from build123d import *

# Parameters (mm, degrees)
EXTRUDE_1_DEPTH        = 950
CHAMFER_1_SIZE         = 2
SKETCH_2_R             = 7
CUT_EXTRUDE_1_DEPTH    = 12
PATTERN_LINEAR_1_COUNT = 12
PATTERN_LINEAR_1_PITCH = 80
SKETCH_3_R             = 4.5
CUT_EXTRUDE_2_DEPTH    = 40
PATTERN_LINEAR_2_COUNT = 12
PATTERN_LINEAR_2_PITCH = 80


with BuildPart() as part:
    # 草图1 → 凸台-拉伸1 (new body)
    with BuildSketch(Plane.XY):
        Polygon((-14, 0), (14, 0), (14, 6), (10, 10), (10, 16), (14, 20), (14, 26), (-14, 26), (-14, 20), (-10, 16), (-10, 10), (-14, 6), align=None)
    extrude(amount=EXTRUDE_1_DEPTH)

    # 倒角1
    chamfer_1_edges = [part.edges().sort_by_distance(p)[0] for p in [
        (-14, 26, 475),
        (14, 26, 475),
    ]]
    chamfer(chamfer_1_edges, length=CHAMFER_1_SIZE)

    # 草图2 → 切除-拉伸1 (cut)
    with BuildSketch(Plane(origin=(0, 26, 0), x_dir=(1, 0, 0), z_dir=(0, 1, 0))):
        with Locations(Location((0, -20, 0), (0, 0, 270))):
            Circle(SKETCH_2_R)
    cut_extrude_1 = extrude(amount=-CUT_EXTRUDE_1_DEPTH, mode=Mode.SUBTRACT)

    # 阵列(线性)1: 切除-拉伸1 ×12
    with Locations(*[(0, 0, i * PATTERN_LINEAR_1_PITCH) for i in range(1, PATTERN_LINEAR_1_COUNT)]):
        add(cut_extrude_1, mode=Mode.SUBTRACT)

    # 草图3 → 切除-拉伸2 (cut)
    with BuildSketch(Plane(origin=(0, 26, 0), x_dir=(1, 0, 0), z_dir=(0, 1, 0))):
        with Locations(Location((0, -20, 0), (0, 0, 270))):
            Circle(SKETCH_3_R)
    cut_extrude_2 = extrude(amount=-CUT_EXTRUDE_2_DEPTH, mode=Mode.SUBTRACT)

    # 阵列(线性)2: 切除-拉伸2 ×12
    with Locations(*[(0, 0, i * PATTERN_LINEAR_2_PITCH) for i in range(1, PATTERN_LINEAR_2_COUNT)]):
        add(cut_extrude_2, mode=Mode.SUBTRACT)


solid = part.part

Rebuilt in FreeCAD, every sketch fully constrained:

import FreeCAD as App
import Part
import Sketcher
from FreeCAD import Vector


def edges_at(feature, points):
    """Names of the edges that pass closest to the given points."""
    edges = feature.Shape.Edges
    near = lambda p: min(range(len(edges)), key=lambda i: edges[i].distToShape(Part.Vertex(*p))[0])
    return sorted({f"Edge{near(p) + 1}" for p in points})


def add_polygon(sketch, points):
    """Adds a closed chain of lines whose ends are joined by coincident constraints."""
    first, n = sketch.GeometryCount, len(points)
    for a, b in zip(points, points[1:] + points[:1]):
        sketch.addGeometry(Part.LineSegment(App.Vector(*a, 0), App.Vector(*b, 0)), False)
    for i in range(n):
        sketch.addConstraint(Sketcher.Constraint("Coincident", first + i, 2, first + (i + 1) % n, 1))

doc = App.newDocument("Part")
body = doc.addObject("PartDesign::Body", "Body")

sketch1 = body.newObject("Sketcher::SketchObject", "Sketch")
sketch1.AttachmentSupport = (doc.getObject("XY_Plane"), [""])
sketch1.MapMode = "FlatFace"
add_polygon(sketch1, [(-14, 0), (14, 0), (14, 6), (10, 10), (10, 16), (14, 20), (14, 26), (-14, 26), (-14, 20), (-10, 16), (-10, 10), (-14, 6)])
sketch1.addConstraint([
    Sketcher.Constraint("Horizontal", 0),
    Sketcher.Constraint("Vertical", 1),
    Sketcher.Constraint("Vertical", 3),
    Sketcher.Constraint("Vertical", 5),
    Sketcher.Constraint("Horizontal", 6),
    Sketcher.Constraint("Vertical", 7),
    Sketcher.Constraint("Vertical", 9),
    Sketcher.Constraint("Vertical", 11),
    Sketcher.Constraint("Symmetric", 0, 2, 11, 2, -1, 1),
    Sketcher.Constraint("Symmetric", 4, 2, 7, 2, -2),
    Sketcher.Constraint("Symmetric", 3, 2, 8, 2, -2),
    Sketcher.Constraint("Perpendicular", 2, 4),
    Sketcher.Constraint("Perpendicular", 4, 8),
    Sketcher.Constraint("Perpendicular", 8, 10),
    Sketcher.Constraint("Horizontal", 2, 2, 9, 2),
    Sketcher.Constraint("Vertical", 1, 2, 4, 2),
    Sketcher.Constraint("Equal", 1, 3),
    Sketcher.Constraint("Equal", 3, 5),
    Sketcher.Constraint("DistanceX", 0, 1, 0, 2, 28.0),
    Sketcher.Constraint("DistanceY", 1, 1, 1, 2, 6.0),
    Sketcher.Constraint("DistanceX", -1, 1, 2, 2, 10.0),
])
pad1 = body.newObject("PartDesign::Pad", "Pad")
pad1.Profile = sketch1
pad1.Length = 950
doc.recompute()

chamfer = body.newObject("PartDesign::Chamfer", "Chamfer")
chamfer.Base = (pad1, edges_at(pad1, [(-14, 26, 475), (14, 26, 475)]))
chamfer.Size = 2

sketch2 = body.newObject("Sketcher::SketchObject", "Sketch001")
sketch2.AttachmentSupport = (doc.getObject("XZ_Plane"), [""])
sketch2.MapMode = "FlatFace"
sketch2.AttachmentOffset = App.Placement(Vector(0, 0, -26), App.Rotation())
sketch2.addGeometry(Part.Circle(Vector(0, 20, 0), Vector(0, 0, 1), 7), False)
sketch2.addConstraint([
    Sketcher.Constraint("PointOnObject", 0, 3, -2),
    Sketcher.Constraint("Diameter", 0, 14.0),
    Sketcher.Constraint("DistanceY", -1, 1, 0, 3, 20.0),
])
pocket1 = body.newObject("PartDesign::Pocket", "Pocket")
pocket1.Profile = sketch2
pocket1.Length = 12
pocket1.Reversed = True
doc.recompute()

linearpattern = body.newObject("PartDesign::LinearPattern", "LinearPattern")
linearpattern.Originals = [pocket1]
linearpattern.Direction = (doc.getObject("Z_Axis"), [""])
linearpattern.Mode = "offset"
linearpattern.Offset = 80
linearpattern.Occurrences = 12
body.Tip = linearpattern

sketch3 = body.newObject("Sketcher::SketchObject", "Sketch002")
sketch3.AttachmentSupport = (doc.getObject("XZ_Plane"), [""])
sketch3.MapMode = "FlatFace"
sketch3.AttachmentOffset = App.Placement(Vector(0, 0, -26), App.Rotation())
sketch3.addGeometry(Part.Circle(Vector(0, 20, 0), Vector(0, 0, 1), 4.5), False)
sketch3.addConstraint([
    Sketcher.Constraint("PointOnObject", 0, 3, -2),
    Sketcher.Constraint("Diameter", 0, 9.0),
    Sketcher.Constraint("DistanceY", -1, 1, 0, 3, 20.0),
])
pocket2 = body.newObject("PartDesign::Pocket", "Pocket001")
pocket2.Profile = sketch3
pocket2.Length = 40
pocket2.Reversed = True
doc.recompute()

linearpattern2 = body.newObject("PartDesign::LinearPattern", "LinearPattern001")
linearpattern2.Originals = [pocket2]
linearpattern2.Direction = (doc.getObject("Z_Axis"), [""])
linearpattern2.Mode = "offset"
linearpattern2.Offset = 80
linearpattern2.Occurrences = 12
body.Tip = linearpattern2

doc.recompute()
